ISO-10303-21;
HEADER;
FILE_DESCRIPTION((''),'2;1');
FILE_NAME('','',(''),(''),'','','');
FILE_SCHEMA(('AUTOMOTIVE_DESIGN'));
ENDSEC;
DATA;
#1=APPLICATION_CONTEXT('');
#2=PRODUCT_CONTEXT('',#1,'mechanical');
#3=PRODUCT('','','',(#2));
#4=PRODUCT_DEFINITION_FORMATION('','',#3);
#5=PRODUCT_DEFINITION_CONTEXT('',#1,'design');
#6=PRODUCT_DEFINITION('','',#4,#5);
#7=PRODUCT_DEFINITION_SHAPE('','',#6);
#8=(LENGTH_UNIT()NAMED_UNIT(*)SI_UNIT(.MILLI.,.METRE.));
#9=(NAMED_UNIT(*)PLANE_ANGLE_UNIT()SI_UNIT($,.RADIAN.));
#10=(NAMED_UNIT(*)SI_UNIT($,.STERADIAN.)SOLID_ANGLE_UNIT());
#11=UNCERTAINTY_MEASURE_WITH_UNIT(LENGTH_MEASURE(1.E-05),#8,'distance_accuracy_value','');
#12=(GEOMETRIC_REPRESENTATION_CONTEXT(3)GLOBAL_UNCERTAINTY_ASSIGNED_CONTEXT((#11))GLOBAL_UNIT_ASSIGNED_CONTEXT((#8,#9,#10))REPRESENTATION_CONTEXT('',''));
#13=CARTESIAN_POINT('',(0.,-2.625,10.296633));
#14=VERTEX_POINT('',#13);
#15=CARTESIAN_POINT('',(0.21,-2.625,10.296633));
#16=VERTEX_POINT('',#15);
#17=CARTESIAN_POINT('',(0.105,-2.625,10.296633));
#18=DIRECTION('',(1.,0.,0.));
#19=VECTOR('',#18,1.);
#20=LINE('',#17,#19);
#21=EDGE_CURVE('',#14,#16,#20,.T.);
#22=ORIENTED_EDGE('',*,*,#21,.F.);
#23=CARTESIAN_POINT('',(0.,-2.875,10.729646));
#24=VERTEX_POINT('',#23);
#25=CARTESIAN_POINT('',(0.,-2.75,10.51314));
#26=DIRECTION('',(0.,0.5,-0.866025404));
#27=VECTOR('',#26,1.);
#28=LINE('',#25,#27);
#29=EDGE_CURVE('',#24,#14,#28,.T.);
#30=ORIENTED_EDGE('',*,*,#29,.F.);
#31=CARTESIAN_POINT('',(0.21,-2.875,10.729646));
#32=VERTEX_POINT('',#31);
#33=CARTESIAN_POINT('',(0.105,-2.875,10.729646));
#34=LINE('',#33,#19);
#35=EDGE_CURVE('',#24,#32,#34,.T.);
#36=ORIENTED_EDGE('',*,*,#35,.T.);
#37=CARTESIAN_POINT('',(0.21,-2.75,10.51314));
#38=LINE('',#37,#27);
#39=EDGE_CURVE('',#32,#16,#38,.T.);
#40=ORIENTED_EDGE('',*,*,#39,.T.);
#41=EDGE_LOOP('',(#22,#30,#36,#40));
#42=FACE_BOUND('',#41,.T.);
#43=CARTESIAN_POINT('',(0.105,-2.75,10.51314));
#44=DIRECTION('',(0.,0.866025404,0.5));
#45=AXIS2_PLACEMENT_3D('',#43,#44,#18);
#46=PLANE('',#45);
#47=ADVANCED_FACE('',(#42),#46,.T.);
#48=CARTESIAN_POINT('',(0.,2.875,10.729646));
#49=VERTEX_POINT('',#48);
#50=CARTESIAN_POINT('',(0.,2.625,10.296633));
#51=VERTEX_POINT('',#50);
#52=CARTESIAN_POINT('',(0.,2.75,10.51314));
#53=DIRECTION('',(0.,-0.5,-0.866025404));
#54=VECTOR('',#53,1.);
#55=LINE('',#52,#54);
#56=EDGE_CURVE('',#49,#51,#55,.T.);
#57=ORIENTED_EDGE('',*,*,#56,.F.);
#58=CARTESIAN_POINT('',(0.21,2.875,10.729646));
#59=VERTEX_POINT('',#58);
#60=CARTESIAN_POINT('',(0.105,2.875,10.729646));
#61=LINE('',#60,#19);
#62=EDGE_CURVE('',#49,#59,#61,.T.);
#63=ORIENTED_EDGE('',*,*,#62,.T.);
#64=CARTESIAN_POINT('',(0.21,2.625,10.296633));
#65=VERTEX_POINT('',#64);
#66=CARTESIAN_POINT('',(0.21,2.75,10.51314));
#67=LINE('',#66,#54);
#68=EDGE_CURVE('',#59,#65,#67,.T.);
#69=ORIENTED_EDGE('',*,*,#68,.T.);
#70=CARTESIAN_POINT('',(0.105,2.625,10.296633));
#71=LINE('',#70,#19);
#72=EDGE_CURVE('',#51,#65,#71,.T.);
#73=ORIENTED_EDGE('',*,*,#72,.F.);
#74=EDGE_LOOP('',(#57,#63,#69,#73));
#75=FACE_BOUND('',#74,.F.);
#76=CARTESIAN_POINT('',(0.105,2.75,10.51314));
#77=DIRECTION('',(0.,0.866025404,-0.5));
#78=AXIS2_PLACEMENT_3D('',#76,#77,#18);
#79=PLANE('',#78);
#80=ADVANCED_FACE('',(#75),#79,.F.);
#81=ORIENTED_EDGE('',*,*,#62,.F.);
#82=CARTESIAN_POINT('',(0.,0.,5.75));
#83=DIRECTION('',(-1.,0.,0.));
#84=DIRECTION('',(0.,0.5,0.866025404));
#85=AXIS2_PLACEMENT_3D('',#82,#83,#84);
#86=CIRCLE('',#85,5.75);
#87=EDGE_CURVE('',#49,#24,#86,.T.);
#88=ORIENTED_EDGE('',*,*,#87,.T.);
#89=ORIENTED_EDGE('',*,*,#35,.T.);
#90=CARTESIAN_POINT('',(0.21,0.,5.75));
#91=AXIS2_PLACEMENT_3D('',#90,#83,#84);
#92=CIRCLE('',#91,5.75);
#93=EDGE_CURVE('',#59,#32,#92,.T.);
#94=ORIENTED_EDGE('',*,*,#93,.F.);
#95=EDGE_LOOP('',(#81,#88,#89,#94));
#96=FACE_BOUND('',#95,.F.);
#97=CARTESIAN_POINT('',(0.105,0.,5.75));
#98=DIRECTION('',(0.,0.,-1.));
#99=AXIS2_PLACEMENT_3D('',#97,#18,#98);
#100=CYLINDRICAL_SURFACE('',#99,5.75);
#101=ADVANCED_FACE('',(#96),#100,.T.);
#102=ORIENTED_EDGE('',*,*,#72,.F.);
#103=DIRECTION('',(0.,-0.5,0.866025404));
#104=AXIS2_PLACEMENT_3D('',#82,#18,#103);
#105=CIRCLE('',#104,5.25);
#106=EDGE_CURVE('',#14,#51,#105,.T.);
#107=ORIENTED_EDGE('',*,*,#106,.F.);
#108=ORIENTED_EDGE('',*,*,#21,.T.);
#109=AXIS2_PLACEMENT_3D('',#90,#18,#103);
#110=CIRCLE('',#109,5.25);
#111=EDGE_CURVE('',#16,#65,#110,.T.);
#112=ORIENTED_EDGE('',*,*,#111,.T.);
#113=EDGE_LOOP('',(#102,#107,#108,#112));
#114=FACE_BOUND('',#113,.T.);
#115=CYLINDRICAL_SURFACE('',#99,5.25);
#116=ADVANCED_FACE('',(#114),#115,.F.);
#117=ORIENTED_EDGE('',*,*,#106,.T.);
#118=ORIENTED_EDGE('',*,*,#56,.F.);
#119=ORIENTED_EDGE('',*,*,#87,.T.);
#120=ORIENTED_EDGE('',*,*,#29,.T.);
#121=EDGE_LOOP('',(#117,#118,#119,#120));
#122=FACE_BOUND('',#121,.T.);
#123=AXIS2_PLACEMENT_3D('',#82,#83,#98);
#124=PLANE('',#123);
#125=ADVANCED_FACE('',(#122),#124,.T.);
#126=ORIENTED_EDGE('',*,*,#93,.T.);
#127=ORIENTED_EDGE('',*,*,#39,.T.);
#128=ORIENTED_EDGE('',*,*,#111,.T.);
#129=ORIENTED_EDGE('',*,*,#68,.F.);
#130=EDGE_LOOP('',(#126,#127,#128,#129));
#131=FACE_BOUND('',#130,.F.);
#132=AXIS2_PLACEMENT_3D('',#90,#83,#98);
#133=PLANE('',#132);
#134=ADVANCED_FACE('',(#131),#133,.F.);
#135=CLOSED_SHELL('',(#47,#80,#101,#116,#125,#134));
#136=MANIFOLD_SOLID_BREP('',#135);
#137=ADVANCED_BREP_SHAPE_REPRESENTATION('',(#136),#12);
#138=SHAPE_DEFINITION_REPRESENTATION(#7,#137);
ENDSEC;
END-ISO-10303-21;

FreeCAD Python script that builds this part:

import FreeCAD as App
import Part
import Sketcher
Q = App.Units.Quantity


def add_polygon(sketch, points):
    """Adds a closed chain of lines whose ends are joined by coincident constraints."""
    first, n = sketch.GeometryCount, len(points)
    for a, b in zip(points, points[1:] + points[:1]):
        sketch.addGeometry(Part.LineSegment(App.Vector(*a, 0), App.Vector(*b, 0)), False)
    for i in range(n):
        sketch.addConstraint(Sketcher.Constraint("Coincident", first + i, 2, first + (i + 1) % n, 1))

doc = App.newDocument("Part")
body = doc.addObject("PartDesign::Body", "Body")

# Sketch on XZ plane
sketch1 = doc.addObject("Sketcher::SketchObject", "Sketch")
body.addObject(sketch1)
sketch1.AttachmentSupport = (doc.XZ_Plane, [""])
sketch1.MapMode = "FlatFace"
add_polygon(sketch1, [(0, 0.5), (0, 0), (0.21, 0), (0.21, 0.5)])  # lines 0-3
sketch1.addGeometry(Part.LineSegment(App.Vector(0, 5.75, 0), App.Vector(0.21, 5.75, 0)), True)  # axis
sketch1.addConstraint([
    Sketcher.Constraint("Vertical", 0),
    Sketcher.Constraint("Horizontal", 1),
    Sketcher.Constraint("Vertical", 2),
    Sketcher.Constraint("Horizontal", 3),
    Sketcher.Constraint("Horizontal", 4),
    Sketcher.Constraint("Coincident", 0, 2, -1, 1),
    Sketcher.Constraint("PointOnObject", 4, 1, -2),
    Sketcher.Constraint("Vertical", 2, 2, 4, 2),
    Sketcher.Constraint("DistanceY", 0, 2, 0, 1, Q("0.5 mm")),
    Sketcher.Constraint("DistanceX", 1, 1, 1, 2, Q("0.21 mm")),
    Sketcher.Constraint("DistanceY", -1, 1, 4, 1, Q("5.75 mm")),
])
revolution = doc.addObject("PartDesign::Revolution", "Revolution")
body.addObject(revolution)
revolution.Profile = sketch1
revolution.ReferenceAxis = (sketch1, ["Axis0"])
revolution.Angle = 150

# Sketch on XZ plane
sketch2 = doc.addObject("Sketcher::SketchObject", "Sketch001")
body.addObject(sketch2)
sketch2.AttachmentSupport = (doc.XZ_Plane, [""])
sketch2.MapMode = "FlatFace"
add_polygon(sketch2, [(0, 0.5), (0, 0), (0.21, 0), (0.21, 0.5)])  # lines 0-3
sketch2.addGeometry(Part.LineSegment(App.Vector(0.21, 5.75, 0), App.Vector(0, 5.75, 0)), True)  # axis
sketch2.addConstraint([
    Sketcher.Constraint("Vertical", 0),
    Sketcher.Constraint("Horizontal", 1),
    Sketcher.Constraint("Vertical", 2),
    Sketcher.Constraint("Horizontal", 3),
    Sketcher.Constraint("Horizontal", 4),
    Sketcher.Constraint("Coincident", 0, 2, -1, 1),
    Sketcher.Constraint("PointOnObject", 4, 2, -2),
    Sketcher.Constraint("Vertical", 2, 2, 4, 1),
    Sketcher.Constraint("DistanceY", 0, 2, 0, 1, Q("0.5 mm")),
    Sketcher.Constraint("DistanceX", 1, 1, 1, 2, Q("0.21 mm")),
    Sketcher.Constraint("DistanceY", -1, 1, 4, 1, Q("5.75 mm")),
])
revolution2 = doc.addObject("PartDesign::Revolution", "Revolution001")
body.addObject(revolution2)
revolution2.Profile = sketch2
revolution2.ReferenceAxis = (sketch2, ["Axis0"])
revolution2.Angle = 150

doc.recompute()
